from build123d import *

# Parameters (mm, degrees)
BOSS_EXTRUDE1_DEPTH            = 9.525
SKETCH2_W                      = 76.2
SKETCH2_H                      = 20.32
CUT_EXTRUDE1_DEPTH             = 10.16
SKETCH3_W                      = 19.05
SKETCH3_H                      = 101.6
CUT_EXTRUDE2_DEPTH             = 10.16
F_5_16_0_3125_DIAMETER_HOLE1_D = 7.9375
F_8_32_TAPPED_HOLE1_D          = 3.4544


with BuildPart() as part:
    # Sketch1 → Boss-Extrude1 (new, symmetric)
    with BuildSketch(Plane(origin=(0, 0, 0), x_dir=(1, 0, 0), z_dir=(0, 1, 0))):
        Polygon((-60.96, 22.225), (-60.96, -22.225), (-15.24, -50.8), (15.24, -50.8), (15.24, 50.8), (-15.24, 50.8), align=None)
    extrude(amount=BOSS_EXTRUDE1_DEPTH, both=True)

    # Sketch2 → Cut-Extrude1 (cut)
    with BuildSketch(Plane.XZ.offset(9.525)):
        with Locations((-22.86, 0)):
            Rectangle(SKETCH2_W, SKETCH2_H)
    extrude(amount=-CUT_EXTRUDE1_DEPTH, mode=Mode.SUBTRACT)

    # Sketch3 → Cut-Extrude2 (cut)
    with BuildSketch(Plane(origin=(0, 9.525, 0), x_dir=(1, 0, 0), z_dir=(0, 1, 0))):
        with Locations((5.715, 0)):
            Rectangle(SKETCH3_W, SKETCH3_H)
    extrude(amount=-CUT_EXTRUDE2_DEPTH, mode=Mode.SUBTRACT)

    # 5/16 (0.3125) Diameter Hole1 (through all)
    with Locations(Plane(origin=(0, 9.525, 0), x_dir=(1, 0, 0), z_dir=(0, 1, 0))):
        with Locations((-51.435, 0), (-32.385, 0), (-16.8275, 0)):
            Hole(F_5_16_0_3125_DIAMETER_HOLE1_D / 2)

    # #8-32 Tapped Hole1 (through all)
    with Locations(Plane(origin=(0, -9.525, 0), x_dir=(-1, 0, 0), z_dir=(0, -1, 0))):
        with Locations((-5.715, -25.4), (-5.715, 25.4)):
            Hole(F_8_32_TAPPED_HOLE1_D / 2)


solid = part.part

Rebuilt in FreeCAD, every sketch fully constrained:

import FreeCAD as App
import Part
import Sketcher
Q = App.Units.Quantity

doc = App.newDocument("Part")
params = doc.addObject("Spreadsheet::Sheet", "Params")
for row, (alias, value) in enumerate([
    ("sketch1_height", "4 in"),
    ("sketch1_width", "1.2 in"),
    ("sketch1_height2", "1.75 in"),
    ("pad1_length", "0.75 in"),
    ("sketch2_width", "3 in"),
    ("sketch2_height", "0.8 in"),
    ("pocket1_length", "0.4 in"),
    ("sketch3_height", "4 in"),
    ("sketch3_width", "0.75 in"),
    ("pocket2_length", "0.4 in"),
    ("sketch4_diameter", "0.3125 in"),
    ("hole_diameter", "0.3125 in"),
    ("sketch5_diameter", "0.136 in"),
    ("hole2_diameter", "0.136 in"),
], start=1):
    params.set(f"A{row}", alias)
    params.set(f"B{row}", "=" + value)
    params.setAlias(f"B{row}", alias)

body = doc.addObject("PartDesign::Body", "Body")

sketch1 = body.newObject("Sketcher::SketchObject", "Sketch")
sketch1.AttachmentSupport = (doc.getObject("XZ_Plane"), [""])
sketch1.MapMode = "FlatFace"
sketch1.addGeometry([
    Part.LineSegment(App.Vector(-60.96, -22.225, 0), App.Vector(-60.96, 22.225, 0)),
    Part.LineSegment(App.Vector(-60.96, 22.225, 0), App.Vector(-15.24, 50.8, 0)),
    Part.LineSegment(App.Vector(-15.24, 50.8, 0), App.Vector(15.24, 50.8, 0)),
    Part.LineSegment(App.Vector(15.24, 50.8, 0), App.Vector(15.24, -50.8, 0)),
    Part.LineSegment(App.Vector(15.24, -50.8, 0), App.Vector(-15.24, -50.8, 0)),
    Part.LineSegment(App.Vector(-15.24, -50.8, 0), App.Vector(-60.96, -22.225, 0)),
], False)
sketch1.addConstraint([
    Sketcher.Constraint("Coincident", 0, 2, 1, 1),
    Sketcher.Constraint("Coincident", 1, 2, 2, 1),
    Sketcher.Constraint("Coincident", 2, 2, 3, 1),
    Sketcher.Constraint("Coincident", 3, 2, 4, 1),
    Sketcher.Constraint("Coincident", 4, 2, 5, 1),
    Sketcher.Constraint("Coincident", 5, 2, 0, 1),
    Sketcher.Constraint("Vertical", 0),
    Sketcher.Constraint("Horizontal", 2),
    Sketcher.Constraint("Vertical", 3),
    Sketcher.Constraint("Horizontal", 4),
    Sketcher.Constraint("Symmetric", 1, 2, 3, 2, -1, 1),
    Sketcher.Constraint("Vertical", 1, 2, 4, 2),
    Sketcher.Constraint("Equal", 1, 5),
    Sketcher.Constraint("DistanceY", 3, 2, 3, 1, Q("4 in")),
    Sketcher.Constraint("DistanceX", 2, 1, 2, 2, Q("1.2 in")),
    Sketcher.Constraint("DistanceX", 0, 2, 2, 2, Q("3 in")),
    Sketcher.Constraint("DistanceY", 0, 1, 0, 2, Q("1.75 in")),
])
sketch1.setExpression("Constraints[13]", "Params.sketch1_height")
sketch1.setExpression("Constraints[14]", "Params.sketch1_width")
sketch1.setExpression("Constraints[16]", "Params.sketch1_height2")
pad1 = body.newObject("PartDesign::Pad", "Pad")
pad1.Profile = sketch1
pad1.setExpression("Length", "Params.pad1_length")
pad1.Midplane = True

sketch2 = body.newObject("Sketcher::SketchObject", "Sketch001")
sketch2.AttachmentSupport = (doc.getObject("XZ_Plane"), [""])
sketch2.MapMode = "FlatFace"
sketch2.AttachmentOffset = App.Placement(App.Vector(0, 0, 0.375 * 25.4), App.Rotation())
sketch2.addGeometry([
    Part.LineSegment(App.Vector(-60.96, 10.16, 0), App.Vector(-60.96, -10.16, 0)),
    Part.LineSegment(App.Vector(-60.96, -10.16, 0), App.Vector(15.24, -10.16, 0)),
    Part.LineSegment(App.Vector(15.24, -10.16, 0), App.Vector(15.24, 10.16, 0)),
    Part.LineSegment(App.Vector(15.24, 10.16, 0), App.Vector(-60.96, 10.16, 0)),
], False)
sketch2.addConstraint([
    Sketcher.Constraint("Coincident", 0, 2, 1, 1),
    Sketcher.Constraint("Coincident", 1, 2, 2, 1),
    Sketcher.Constraint("Coincident", 2, 2, 3, 1),
    Sketcher.Constraint("Coincident", 3, 2, 0, 1),
    Sketcher.Constraint("Vertical", 0),
    Sketcher.Constraint("Horizontal", 1),
    Sketcher.Constraint("Vertical", 2),
    Sketcher.Constraint("Horizontal", 3),
    Sketcher.Constraint("DistanceX", 1, 1, 1, 2, Q("3 in")),
    Sketcher.Constraint("DistanceY", 0, 2, 0, 1, Q("0.8 in")),
    Sketcher.Constraint("DistanceX", 0, 2, -1, 1, Q("2.4 in")),
    Sketcher.Constraint("DistanceY", 0, 2, -1, 1, Q("0.4 in")),
])
sketch2.setExpression("Constraints[8]", "Params.sketch2_width")
sketch2.setExpression("Constraints[9]", "Params.sketch2_height")
pocket1 = body.newObject("PartDesign::Pocket", "Pocket")
pocket1.Profile = sketch2
pocket1.setExpression("Length", "Params.pocket1_length")

sketch3 = body.newObject("Sketcher::SketchObject", "Sketch002")
sketch3.AttachmentSupport = (doc.getObject("XZ_Plane"), [""])
sketch3.MapMode = "FlatFace"
sketch3.AttachmentOffset = App.Placement(App.Vector(0, 0, -0.375 * 25.4), App.Rotation())
sketch3.addGeometry([
    Part.LineSegment(App.Vector(-3.81, -50.8, 0), App.Vector(-3.81, 50.8, 0)),
    Part.LineSegment(App.Vector(-3.81, 50.8, 0), App.Vector(15.24, 50.8, 0)),
    Part.LineSegment(App.Vector(15.24, 50.8, 0), App.Vector(15.24, -50.8, 0)),
    Part.LineSegment(App.Vector(15.24, -50.8, 0), App.Vector(-3.81, -50.8, 0)),
], False)
sketch3.addConstraint([
    Sketcher.Constraint("Coincident", 0, 2, 1, 1),
    Sketcher.Constraint("Coincident", 1, 2, 2, 1),
    Sketcher.Constraint("Coincident", 2, 2, 3, 1),
    Sketcher.Constraint("Coincident", 3, 2, 0, 1),
    Sketcher.Constraint("Vertical", 0),
    Sketcher.Constraint("Horizontal", 1),
    Sketcher.Constraint("Vertical", 2),
    Sketcher.Constraint("Horizontal", 3),
    Sketcher.Constraint("DistanceY", 0, 1, 0, 2, Q("4 in")),
    Sketcher.Constraint("DistanceY", -1, 1, 0, 2, Q("2 in")),
    Sketcher.Constraint("DistanceX", 1, 1, 1, 2, Q("0.75 in")),
    Sketcher.Constraint("DistanceX", -1, 1, 1, 2, Q("0.6 in")),
])
sketch3.setExpression("Constraints[8]", "Params.sketch3_height")
sketch3.setExpression("Constraints[10]", "Params.sketch3_width")
pocket2 = body.newObject("PartDesign::Pocket", "Pocket001")
pocket2.Profile = sketch3
pocket2.setExpression("Length", "Params.pocket2_length")
pocket2.Reversed = True

sketch4 = body.newObject("Sketcher::SketchObject", "Sketch003")
sketch4.AttachmentSupport = (doc.getObject("XZ_Plane"), [""])
sketch4.MapMode = "FlatFace"
sketch4.AttachmentOffset = App.Placement(App.Vector(0, 0, -0.375 * 25.4), App.Rotation())
sketch4.addGeometry([
    Part.Circle(App.Vector(-51.435, 0, 0), App.Vector(0, 0, 1), 3.96875),
    Part.Circle(App.Vector(-32.385, 0, 0), App.Vector(0, 0, 1), 3.96875),
    Part.Circle(App.Vector(-16.8275, 0, 0), App.Vector(0, 0, 1), 3.96875),
], False)
sketch4.addConstraint([
    Sketcher.Constraint("Equal", 0, 1),
    Sketcher.Constraint("Equal", 1, 2),
    Sketcher.Constraint("PointOnObject", 0, 3, -1),
    Sketcher.Constraint("PointOnObject", 1, 3, -1),
    Sketcher.Constraint("PointOnObject", 2, 3, -1),
    Sketcher.Constraint("Diameter", 0, Q("0.3125 in")),
    Sketcher.Constraint("DistanceX", 0, 3, 1, 3, Q("0.75 in")),
    Sketcher.Constraint("DistanceX", 0, 3, -1, 1, Q("2.025 in")),
    Sketcher.Constraint("DistanceX", 2, 3, -1, 1, Q("0.6625 in")),
])
sketch4.setExpression("Constraints[5]", "Params.sketch4_diameter")
doc.recompute()
hole = body.newObject("PartDesign::Hole", "Hole")
hole.Profile = sketch4
hole.ThreadType = "None"
hole.setExpression("Diameter", "Params.hole_diameter")
hole.DepthType = "ThroughAll"
hole.Reversed = True

sketch5 = body.newObject("Sketcher::SketchObject", "Sketch004")
sketch5.AttachmentSupport = (doc.getObject("XZ_Plane"), [""])
sketch5.MapMode = "FlatFace"
sketch5.AttachmentOffset = App.Placement(App.Vector(0, 0, 0.375 * 25.4), App.Rotation())
sketch5.addGeometry([
    Part.Circle(App.Vector(5.715, 25.4, 0), App.Vector(0, 0, 1), 1.7272),
    Part.Circle(App.Vector(5.715, -25.4, 0), App.Vector(0, 0, 1), 1.7272),
], False)
sketch5.addConstraint([
    Sketcher.Constraint("Equal", 0, 1),
    Sketcher.Constraint("Symmetric", 0, 3, 1, 3, -1),
    Sketcher.Constraint("Diameter", 0, Q("0.136 in")),
    Sketcher.Constraint("DistanceY", -1, 1, 0, 3, Q("1 in")),
    Sketcher.Constraint("DistanceX", -1, 1, 0, 3, Q("0.225 in")),
])
sketch5.setExpression("Constraints[2]", "Params.sketch5_diameter")
doc.recompute()
hole2 = body.newObject("PartDesign::Hole", "Hole001")
hole2.Profile = sketch5
hole2.ThreadType = "None"
hole2.setExpression("Diameter", "Params.hole2_diameter")
hole2.DepthType = "ThroughAll"

doc.recompute()
